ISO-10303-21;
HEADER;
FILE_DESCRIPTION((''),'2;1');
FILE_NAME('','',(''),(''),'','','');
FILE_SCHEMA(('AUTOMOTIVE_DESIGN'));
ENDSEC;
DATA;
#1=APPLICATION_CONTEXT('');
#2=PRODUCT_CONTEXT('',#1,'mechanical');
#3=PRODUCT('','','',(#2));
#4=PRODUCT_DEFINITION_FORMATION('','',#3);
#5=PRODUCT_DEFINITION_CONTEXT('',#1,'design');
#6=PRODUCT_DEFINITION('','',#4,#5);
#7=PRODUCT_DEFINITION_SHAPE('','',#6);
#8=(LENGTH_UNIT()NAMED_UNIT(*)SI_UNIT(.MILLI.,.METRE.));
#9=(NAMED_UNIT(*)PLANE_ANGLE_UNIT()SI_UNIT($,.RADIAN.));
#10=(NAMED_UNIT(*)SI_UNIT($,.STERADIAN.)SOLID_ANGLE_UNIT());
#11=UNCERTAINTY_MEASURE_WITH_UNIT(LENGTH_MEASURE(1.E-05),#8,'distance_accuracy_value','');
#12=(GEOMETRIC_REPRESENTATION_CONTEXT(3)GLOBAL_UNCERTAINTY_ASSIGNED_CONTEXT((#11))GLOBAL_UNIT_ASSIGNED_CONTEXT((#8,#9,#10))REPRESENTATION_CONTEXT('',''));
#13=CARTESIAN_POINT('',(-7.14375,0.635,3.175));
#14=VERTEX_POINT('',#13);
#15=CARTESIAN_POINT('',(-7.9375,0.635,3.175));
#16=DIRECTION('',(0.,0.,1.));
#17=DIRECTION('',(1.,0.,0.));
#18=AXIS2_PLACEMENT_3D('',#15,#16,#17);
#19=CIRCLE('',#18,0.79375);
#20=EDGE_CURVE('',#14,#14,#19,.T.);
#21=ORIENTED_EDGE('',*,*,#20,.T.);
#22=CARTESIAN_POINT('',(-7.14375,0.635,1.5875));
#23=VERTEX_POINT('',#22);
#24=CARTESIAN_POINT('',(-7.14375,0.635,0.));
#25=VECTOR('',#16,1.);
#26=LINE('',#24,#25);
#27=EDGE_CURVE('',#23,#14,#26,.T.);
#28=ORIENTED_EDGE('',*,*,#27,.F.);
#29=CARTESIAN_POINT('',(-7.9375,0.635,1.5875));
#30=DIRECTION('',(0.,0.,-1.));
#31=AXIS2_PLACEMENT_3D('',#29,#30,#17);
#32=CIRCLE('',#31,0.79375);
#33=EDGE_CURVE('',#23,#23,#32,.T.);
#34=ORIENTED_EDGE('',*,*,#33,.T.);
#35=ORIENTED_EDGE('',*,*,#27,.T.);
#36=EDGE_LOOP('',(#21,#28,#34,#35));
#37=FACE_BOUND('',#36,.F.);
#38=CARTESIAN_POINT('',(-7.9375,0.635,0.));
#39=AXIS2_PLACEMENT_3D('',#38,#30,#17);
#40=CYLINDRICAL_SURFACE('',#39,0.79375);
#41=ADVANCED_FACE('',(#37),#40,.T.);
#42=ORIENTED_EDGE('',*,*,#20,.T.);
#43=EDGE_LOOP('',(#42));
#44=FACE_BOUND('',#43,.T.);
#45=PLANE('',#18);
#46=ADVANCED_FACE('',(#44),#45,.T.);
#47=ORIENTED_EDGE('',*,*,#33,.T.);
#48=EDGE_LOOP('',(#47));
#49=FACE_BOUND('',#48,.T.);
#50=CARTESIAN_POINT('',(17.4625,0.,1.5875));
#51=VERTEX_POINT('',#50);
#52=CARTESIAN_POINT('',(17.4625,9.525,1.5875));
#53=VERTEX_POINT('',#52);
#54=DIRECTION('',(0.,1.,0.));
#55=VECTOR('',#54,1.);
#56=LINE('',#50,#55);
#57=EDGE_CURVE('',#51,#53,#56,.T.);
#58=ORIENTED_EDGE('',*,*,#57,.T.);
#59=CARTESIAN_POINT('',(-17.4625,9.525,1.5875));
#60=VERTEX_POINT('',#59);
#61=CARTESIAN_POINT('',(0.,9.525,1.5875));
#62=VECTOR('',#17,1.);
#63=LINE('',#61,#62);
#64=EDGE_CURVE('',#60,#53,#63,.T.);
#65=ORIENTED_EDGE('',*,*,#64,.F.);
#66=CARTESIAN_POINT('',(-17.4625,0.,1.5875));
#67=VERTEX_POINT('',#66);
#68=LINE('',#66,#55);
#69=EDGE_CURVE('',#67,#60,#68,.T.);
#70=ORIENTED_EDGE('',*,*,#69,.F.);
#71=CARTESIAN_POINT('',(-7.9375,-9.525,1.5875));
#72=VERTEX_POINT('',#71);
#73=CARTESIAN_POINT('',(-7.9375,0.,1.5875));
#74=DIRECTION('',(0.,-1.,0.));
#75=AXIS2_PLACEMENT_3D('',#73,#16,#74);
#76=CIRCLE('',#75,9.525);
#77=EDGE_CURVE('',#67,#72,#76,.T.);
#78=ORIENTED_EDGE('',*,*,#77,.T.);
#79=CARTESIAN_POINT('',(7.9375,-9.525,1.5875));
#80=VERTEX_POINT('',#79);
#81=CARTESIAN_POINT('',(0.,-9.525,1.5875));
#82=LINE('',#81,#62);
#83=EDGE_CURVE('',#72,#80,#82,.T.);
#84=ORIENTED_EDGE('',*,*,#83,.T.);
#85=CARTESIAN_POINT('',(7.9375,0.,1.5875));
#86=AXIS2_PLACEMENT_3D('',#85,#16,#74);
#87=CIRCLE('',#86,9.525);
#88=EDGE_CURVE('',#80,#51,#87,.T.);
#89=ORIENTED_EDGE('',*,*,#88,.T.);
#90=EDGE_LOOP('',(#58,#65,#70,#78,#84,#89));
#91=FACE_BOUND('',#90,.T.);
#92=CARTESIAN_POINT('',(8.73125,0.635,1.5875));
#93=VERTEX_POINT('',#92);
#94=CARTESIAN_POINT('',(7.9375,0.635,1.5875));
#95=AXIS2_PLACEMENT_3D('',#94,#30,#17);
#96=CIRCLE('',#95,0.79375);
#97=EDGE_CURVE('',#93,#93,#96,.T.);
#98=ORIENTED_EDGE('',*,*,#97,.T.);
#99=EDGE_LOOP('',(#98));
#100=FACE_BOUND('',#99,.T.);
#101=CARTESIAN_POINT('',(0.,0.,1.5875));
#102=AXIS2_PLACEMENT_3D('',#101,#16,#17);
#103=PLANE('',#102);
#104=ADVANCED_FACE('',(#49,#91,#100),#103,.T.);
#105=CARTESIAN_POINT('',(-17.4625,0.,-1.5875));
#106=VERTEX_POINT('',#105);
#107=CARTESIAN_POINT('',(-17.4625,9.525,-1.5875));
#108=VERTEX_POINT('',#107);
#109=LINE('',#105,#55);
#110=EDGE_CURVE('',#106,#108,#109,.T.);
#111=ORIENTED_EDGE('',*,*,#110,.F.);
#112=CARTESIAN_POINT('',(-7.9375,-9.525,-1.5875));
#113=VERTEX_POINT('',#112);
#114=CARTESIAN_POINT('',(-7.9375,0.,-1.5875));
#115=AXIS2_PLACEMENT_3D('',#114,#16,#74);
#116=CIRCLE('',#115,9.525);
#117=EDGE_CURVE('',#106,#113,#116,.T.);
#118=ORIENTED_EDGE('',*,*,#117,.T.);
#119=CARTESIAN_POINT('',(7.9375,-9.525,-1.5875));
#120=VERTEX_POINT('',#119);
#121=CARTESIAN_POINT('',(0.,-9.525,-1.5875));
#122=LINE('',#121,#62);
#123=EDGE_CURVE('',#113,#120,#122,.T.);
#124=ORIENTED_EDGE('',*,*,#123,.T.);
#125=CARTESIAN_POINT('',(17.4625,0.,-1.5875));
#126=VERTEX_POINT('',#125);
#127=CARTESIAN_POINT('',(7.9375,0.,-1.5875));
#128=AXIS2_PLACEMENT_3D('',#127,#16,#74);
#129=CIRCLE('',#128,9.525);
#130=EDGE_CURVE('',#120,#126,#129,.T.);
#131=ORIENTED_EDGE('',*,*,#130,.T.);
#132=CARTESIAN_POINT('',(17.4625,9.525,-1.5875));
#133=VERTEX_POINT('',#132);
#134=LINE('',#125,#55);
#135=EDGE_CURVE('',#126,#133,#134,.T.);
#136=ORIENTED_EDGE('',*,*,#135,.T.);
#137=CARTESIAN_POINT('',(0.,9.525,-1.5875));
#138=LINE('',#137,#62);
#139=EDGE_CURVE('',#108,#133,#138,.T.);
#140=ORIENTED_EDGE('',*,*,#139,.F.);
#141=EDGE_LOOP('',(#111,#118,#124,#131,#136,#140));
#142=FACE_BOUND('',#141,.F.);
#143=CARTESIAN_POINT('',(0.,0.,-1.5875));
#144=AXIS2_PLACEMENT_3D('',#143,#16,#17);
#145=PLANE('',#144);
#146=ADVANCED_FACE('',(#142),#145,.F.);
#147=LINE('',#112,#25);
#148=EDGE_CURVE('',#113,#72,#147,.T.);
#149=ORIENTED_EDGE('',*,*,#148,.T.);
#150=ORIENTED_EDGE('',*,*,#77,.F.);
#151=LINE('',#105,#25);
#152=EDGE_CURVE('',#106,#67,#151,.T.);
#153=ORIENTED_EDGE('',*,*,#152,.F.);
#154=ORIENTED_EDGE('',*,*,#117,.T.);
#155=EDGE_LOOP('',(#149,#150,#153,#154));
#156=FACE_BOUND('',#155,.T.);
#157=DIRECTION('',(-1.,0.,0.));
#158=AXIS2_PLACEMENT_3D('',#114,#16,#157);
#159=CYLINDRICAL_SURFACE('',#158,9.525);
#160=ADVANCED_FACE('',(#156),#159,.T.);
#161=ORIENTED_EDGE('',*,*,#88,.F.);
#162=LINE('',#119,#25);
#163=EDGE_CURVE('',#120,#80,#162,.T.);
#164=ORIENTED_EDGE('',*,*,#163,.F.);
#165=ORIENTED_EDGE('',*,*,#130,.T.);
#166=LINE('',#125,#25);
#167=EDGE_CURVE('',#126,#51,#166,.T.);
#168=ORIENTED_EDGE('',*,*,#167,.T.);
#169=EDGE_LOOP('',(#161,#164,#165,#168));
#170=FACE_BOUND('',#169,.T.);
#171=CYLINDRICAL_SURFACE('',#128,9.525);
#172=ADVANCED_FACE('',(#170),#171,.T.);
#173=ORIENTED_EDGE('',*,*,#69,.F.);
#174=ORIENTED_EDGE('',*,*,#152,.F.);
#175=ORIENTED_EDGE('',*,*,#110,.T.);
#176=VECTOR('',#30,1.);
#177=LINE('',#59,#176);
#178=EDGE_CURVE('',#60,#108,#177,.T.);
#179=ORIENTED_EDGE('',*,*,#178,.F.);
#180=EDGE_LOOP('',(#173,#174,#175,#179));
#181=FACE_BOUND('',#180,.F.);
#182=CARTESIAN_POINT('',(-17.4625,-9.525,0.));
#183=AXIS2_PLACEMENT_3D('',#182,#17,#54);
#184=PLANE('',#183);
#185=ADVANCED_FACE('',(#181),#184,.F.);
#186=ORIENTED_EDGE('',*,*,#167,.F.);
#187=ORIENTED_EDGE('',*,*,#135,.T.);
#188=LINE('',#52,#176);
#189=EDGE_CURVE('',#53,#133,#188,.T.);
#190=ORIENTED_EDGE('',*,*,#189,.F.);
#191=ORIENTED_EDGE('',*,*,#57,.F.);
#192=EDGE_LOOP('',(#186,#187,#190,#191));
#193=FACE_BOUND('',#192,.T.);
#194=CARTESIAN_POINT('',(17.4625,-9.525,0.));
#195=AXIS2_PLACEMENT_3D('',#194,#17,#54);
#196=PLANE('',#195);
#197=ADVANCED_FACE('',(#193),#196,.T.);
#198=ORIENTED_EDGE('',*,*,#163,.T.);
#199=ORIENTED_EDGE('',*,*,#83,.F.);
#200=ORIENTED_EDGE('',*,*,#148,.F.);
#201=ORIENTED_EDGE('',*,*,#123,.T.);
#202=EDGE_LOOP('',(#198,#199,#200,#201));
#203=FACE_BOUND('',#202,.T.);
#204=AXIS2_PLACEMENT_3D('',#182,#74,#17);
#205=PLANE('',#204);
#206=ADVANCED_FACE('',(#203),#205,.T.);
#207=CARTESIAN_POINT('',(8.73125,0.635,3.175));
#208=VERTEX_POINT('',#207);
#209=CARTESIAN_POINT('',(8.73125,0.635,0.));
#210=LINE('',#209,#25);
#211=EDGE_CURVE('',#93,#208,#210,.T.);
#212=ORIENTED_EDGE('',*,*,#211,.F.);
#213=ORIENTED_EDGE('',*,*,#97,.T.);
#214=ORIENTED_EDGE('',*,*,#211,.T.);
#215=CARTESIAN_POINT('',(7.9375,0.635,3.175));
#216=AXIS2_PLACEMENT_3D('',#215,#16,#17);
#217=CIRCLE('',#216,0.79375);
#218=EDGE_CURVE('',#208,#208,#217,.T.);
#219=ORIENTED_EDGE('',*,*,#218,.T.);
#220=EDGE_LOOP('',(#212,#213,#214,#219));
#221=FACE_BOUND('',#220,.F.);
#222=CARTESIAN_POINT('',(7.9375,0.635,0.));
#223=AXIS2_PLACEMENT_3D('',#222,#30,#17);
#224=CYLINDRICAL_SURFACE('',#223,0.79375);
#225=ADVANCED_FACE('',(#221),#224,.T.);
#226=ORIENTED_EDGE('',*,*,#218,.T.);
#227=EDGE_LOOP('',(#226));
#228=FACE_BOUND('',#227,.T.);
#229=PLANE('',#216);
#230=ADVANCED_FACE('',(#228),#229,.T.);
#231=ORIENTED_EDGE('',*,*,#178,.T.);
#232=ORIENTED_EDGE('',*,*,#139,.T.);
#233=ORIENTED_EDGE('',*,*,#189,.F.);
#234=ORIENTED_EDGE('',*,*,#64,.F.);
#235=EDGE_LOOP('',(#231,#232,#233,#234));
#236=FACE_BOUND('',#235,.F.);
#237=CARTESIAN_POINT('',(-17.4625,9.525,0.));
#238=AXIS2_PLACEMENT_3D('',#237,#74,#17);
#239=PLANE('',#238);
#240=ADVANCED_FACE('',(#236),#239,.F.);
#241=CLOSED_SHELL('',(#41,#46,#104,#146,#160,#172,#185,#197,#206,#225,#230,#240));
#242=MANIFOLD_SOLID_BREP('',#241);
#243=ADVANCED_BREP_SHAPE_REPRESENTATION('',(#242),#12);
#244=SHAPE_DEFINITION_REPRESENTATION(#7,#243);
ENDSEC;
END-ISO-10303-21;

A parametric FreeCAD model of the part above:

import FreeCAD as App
import Part
import Sketcher
from FreeCAD import Vector
Q = App.Units.Quantity


def edges_at(feature, points):
    """Names of the edges that pass closest to the given points."""
    edges = feature.Shape.Edges
    near = lambda p: min(range(len(edges)), key=lambda i: edges[i].distToShape(Part.Vertex(*p))[0])
    return sorted({f"Edge{near(p) + 1}" for p in points})

doc = App.newDocument("Part")
params = doc.addObject("Spreadsheet::Sheet", "Params")
for row, (alias, value) in enumerate([
    ("sketch1_height", "0.75 in"),
    ("sketch1_width", "1.375 in"),
    ("pad1_length", "0.125 in"),
    ("sketch2_diameter", "0.0625 in"),
    ("pad2_length", "0.125 in"),
    ("fillet_radius", "0.375 in"),
], start=1):
    params.set(f"A{row}", alias)
    params.set(f"B{row}", "=" + value)
    params.setAlias(f"B{row}", alias)

body = doc.addObject("PartDesign::Body", "Body")

# Sketch on XY plane
sketch1 = body.newObject("Sketcher::SketchObject", "Sketch")
sketch1.AttachmentSupport = (doc.getObject("XY_Plane"), [""])
sketch1.MapMode = "FlatFace"
sketch1.addGeometry(Part.LineSegment(Vector(-17, 10, 0), Vector(-17, -10, 0)), False)
sketch1.addGeometry(Part.LineSegment(Vector(-17, -10, 0), Vector(17, -10, 0)), False)
sketch1.addGeometry(Part.LineSegment(Vector(17, -10, 0), Vector(17, 10, 0)), False)
sketch1.addGeometry(Part.LineSegment(Vector(17, 10, 0), Vector(-17, 10, 0)), False)
sketch1.addConstraint(Sketcher.Constraint("Coincident", 0, 2, 1, 1))
sketch1.addConstraint(Sketcher.Constraint("Coincident", 1, 2, 2, 1))
sketch1.addConstraint(Sketcher.Constraint("Coincident", 2, 2, 3, 1))
sketch1.addConstraint(Sketcher.Constraint("Coincident", 3, 2, 0, 1))
sketch1.addConstraint(Sketcher.Constraint("Vertical", 0))
sketch1.addConstraint(Sketcher.Constraint("Horizontal", 1))
sketch1.addConstraint(Sketcher.Constraint("Vertical", 2))
sketch1.addConstraint(Sketcher.Constraint("Horizontal", 3))
sketch1.addConstraint(Sketcher.Constraint("Symmetric", 0, 2, 2, 2, -1, 1))
sketch1.addConstraint(Sketcher.Constraint("DistanceY", 0, 2, 0, 1, Q("0.75 in")))
sketch1.addConstraint(Sketcher.Constraint("DistanceX", 1, 1, 1, 2, Q("1.375 in")))
sketch1.setExpression("Constraints[9]", "Params.sketch1_height")
sketch1.setExpression("Constraints[10]", "Params.sketch1_width")
pad1 = body.newObject("PartDesign::Pad", "Pad")
pad1.Profile = sketch1
pad1.setExpression("Length", "Params.pad1_length")
pad1.Midplane = True

# Sketch on XY plane
sketch2 = body.newObject("Sketcher::SketchObject", "Sketch001")
sketch2.AttachmentSupport = (doc.getObject("XY_Plane"), [""])
sketch2.MapMode = "FlatFace"
sketch2.addGeometry(Part.Circle(Vector(-7.9, 0.6, 0), Vector(0, 0, 1), 0.8), False)
sketch2.addGeometry(Part.Circle(Vector(7.9, 0.6, 0), Vector(0, 0, 1), 0.8), False)
sketch2.addConstraint(Sketcher.Constraint("Equal", 0, 1))
sketch2.addConstraint(Sketcher.Constraint("Symmetric", 0, 3, 1, 3, -2))
sketch2.addConstraint(Sketcher.Constraint("Diameter", 0, Q("0.0625 in")))
sketch2.addConstraint(Sketcher.Constraint("DistanceX", 0, 3, -1, 1, Q("0.3125 in")))
sketch2.addConstraint(Sketcher.Constraint("DistanceY", -1, 1, 0, 3, Q("0.025 in")))
sketch2.setExpression("Constraints[2]", "Params.sketch2_diameter")
pad2 = body.newObject("PartDesign::Pad", "Pad001")
pad2.Profile = sketch2
pad2.setExpression("Length", "Params.pad2_length")
doc.recompute()

fillet = body.newObject("PartDesign::Fillet", "Fillet")
fillet.Base = (pad2, edges_at(pad2, [(17.462, -9.525, 0), (-17.462, -9.525, 0)]))
fillet.setExpression("Radius", "Params.fillet_radius")

doc.recompute()
